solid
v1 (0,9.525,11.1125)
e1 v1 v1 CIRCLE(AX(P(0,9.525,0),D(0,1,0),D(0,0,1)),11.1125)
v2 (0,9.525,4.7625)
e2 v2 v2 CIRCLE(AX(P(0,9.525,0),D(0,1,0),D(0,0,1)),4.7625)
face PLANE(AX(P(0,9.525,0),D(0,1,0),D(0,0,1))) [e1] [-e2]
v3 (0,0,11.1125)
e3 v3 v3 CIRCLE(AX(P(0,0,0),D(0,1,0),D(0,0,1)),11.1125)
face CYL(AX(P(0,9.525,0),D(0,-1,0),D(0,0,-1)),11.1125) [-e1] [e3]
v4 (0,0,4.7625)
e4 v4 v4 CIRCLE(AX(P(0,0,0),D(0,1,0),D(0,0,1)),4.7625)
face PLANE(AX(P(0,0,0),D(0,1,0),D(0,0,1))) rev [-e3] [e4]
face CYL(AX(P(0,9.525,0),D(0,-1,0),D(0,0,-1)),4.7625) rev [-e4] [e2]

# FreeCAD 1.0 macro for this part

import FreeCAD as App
import Part
import Sketcher
from FreeCAD import Vector
Q = App.Units.Quantity

doc = App.newDocument("Part")
body = doc.addObject("PartDesign::Body", "Body")

# Sketch on XZ plane
sketch1 = body.newObject("Sketcher::SketchObject", "Sketch")
sketch1.AttachmentSupport = (doc.getObject("XZ_Plane"), [""])
sketch1.MapMode = "FlatFace"
sketch1.addGeometry(Part.Circle(Vector(0, 0, 0), Vector(0, 0, 1), 11.1), False)
sketch1.addGeometry(Part.Circle(Vector(0, 0, 0), Vector(0, 0, 1), 4.8), False)
sketch1.addConstraint(Sketcher.Constraint("Coincident", 0, 3, -1, 1))
sketch1.addConstraint(Sketcher.Constraint("Coincident", 1, 3, -1, 1))
sketch1.addConstraint(Sketcher.Constraint("Diameter", 0, Q("0.875 in")))
sketch1.addConstraint(Sketcher.Constraint("Diameter", 1, Q("0.375 in")))
pad1 = body.newObject("PartDesign::Pad", "Pad")
pad1.Profile = sketch1
pad1.Length = Q("0.375 in")
pad1.Reversed = True

doc.recompute()
